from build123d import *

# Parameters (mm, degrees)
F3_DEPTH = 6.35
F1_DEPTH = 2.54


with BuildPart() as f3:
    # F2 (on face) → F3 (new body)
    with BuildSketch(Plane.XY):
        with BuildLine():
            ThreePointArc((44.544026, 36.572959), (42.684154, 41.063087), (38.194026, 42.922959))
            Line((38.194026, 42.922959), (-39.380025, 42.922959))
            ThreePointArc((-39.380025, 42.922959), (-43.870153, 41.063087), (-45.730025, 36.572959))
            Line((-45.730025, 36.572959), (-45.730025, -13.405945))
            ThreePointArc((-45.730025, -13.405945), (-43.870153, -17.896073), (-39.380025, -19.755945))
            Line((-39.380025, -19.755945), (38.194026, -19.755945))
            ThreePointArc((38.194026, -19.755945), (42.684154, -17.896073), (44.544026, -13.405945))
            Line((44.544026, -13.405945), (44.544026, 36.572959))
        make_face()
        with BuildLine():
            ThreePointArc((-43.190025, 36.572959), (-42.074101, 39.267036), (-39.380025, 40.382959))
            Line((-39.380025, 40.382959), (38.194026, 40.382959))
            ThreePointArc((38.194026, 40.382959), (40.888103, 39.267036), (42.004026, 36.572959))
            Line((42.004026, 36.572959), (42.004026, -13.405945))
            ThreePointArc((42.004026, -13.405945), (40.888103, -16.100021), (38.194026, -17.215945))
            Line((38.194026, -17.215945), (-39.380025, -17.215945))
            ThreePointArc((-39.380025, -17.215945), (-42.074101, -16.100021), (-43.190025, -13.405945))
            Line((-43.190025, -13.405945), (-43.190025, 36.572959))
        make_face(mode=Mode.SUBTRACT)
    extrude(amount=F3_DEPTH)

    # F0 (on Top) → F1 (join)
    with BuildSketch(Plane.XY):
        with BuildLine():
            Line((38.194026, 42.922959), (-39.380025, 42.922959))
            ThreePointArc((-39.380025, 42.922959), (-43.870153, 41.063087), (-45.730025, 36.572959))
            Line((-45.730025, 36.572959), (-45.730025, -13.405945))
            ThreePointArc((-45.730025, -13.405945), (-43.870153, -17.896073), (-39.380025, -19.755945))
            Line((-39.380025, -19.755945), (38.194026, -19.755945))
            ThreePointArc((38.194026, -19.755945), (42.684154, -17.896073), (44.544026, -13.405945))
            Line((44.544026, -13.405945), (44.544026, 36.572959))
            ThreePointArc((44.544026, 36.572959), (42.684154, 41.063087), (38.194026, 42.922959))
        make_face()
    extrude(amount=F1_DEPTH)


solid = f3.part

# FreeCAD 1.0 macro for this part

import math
import FreeCAD as App
import Part
import Sketcher
from FreeCAD import Vector
Q = App.Units.Quantity

doc = App.newDocument("Part")
body = doc.addObject("PartDesign::Body", "Body")

# Sketch on XY plane
sketch1 = body.newObject("Sketcher::SketchObject", "Sketch")
sketch1.AttachmentSupport = (doc.getObject("XY_Plane"), [""])
sketch1.MapMode = "FlatFace"
sketch1.addGeometry(Part.ArcOfCircle(Part.Circle(Vector(38.2, 36.6, 0), Vector(0, 0, 1), 6.4), math.radians(0), math.radians(90)), False)
sketch1.addGeometry(Part.LineSegment(Vector(38.2, 42.9, 0), Vector(-39.4, 42.9, 0)), False)
sketch1.addGeometry(Part.ArcOfCircle(Part.Circle(Vector(-39.4, 36.6, 0), Vector(0, 0, 1), 6.4), math.radians(90), math.radians(180)), False)
sketch1.addGeometry(Part.LineSegment(Vector(-45.7, 36.6, 0), Vector(-45.7, -13.4, 0)), False)
sketch1.addGeometry(Part.ArcOfCircle(Part.Circle(Vector(-39.4, -13.4, 0), Vector(0, 0, 1), 6.4), math.radians(-180), math.radians(-90)), False)
sketch1.addGeometry(Part.LineSegment(Vector(-39.4, -19.8, 0), Vector(38.2, -19.8, 0)), False)
sketch1.addGeometry(Part.ArcOfCircle(Part.Circle(Vector(38.2, -13.4, 0), Vector(0, 0, 1), 6.4), math.radians(-90), math.radians(0)), False)
sketch1.addGeometry(Part.LineSegment(Vector(44.5, -13.4, 0), Vector(44.5, 36.6, 0)), False)
sketch1.addGeometry(Part.LineSegment(Vector(-43.2, -13.4, 0), Vector(-43.2, 36.6, 0)), False)
sketch1.addGeometry(Part.ArcOfCircle(Part.Circle(Vector(-39.4, 36.6, 0), Vector(0, 0, 1), 3.8), math.radians(90), math.radians(180)), False)
sketch1.addGeometry(Part.LineSegment(Vector(-39.4, 40.4, 0), Vector(38.2, 40.4, 0)), False)
sketch1.addGeometry(Part.ArcOfCircle(Part.Circle(Vector(38.2, 36.6, 0), Vector(0, 0, 1), 3.8), math.radians(0), math.radians(90)), False)
sketch1.addGeometry(Part.LineSegment(Vector(42, 36.6, 0), Vector(42, -13.4, 0)), False)
sketch1.addGeometry(Part.ArcOfCircle(Part.Circle(Vector(38.2, -13.4, 0), Vector(0, 0, 1), 3.8), math.radians(-90), math.radians(0)), False)
sketch1.addGeometry(Part.LineSegment(Vector(38.2, -17.2, 0), Vector(-39.4, -17.2, 0)), False)
sketch1.addGeometry(Part.ArcOfCircle(Part.Circle(Vector(-39.4, -13.4, 0), Vector(0, 0, 1), 3.8), math.radians(-180), math.radians(-90)), False)
sketch1.addConstraint(Sketcher.Constraint("Tangent", 0, 2, 1, 1))
sketch1.addConstraint(Sketcher.Constraint("Tangent", 1, 2, 2, 1))
sketch1.addConstraint(Sketcher.Constraint("Tangent", 2, 2, 3, 1))
sketch1.addConstraint(Sketcher.Constraint("Tangent", 3, 2, 4, 1))
sketch1.addConstraint(Sketcher.Constraint("Tangent", 4, 2, 5, 1))
sketch1.addConstraint(Sketcher.Constraint("Tangent", 5, 2, 6, 1))
sketch1.addConstraint(Sketcher.Constraint("Tangent", 6, 2, 7, 1))
sketch1.addConstraint(Sketcher.Constraint("Tangent", 7, 2, 0, 1))
sketch1.addConstraint(Sketcher.Constraint("Tangent", 8, 2, 9, 2))
sketch1.addConstraint(Sketcher.Constraint("Tangent", 9, 1, 10, 1))
sketch1.addConstraint(Sketcher.Constraint("Tangent", 10, 2, 11, 2))
sketch1.addConstraint(Sketcher.Constraint("Tangent", 11, 1, 12, 1))
sketch1.addConstraint(Sketcher.Constraint("Tangent", 12, 2, 13, 2))
sketch1.addConstraint(Sketcher.Constraint("Tangent", 13, 1, 14, 1))
sketch1.addConstraint(Sketcher.Constraint("Tangent", 14, 2, 15, 2))
sketch1.addConstraint(Sketcher.Constraint("Tangent", 15, 1, 8, 1))
sketch1.addConstraint(Sketcher.Constraint("Horizontal", 1))
sketch1.addConstraint(Sketcher.Constraint("Vertical", 3))
sketch1.addConstraint(Sketcher.Constraint("Horizontal", 5))
sketch1.addConstraint(Sketcher.Constraint("Vertical", 7))
sketch1.addConstraint(Sketcher.Constraint("Vertical", 8))
sketch1.addConstraint(Sketcher.Constraint("Horizontal", 10))
sketch1.addConstraint(Sketcher.Constraint("Vertical", 12))
sketch1.addConstraint(Sketcher.Constraint("Horizontal", 14))
sketch1.addConstraint(Sketcher.Constraint("Coincident", 9, 3, 2, 3))
sketch1.addConstraint(Sketcher.Constraint("Coincident", 11, 3, 0, 3))
sketch1.addConstraint(Sketcher.Constraint("Coincident", 13, 3, 6, 3))
sketch1.addConstraint(Sketcher.Constraint("Equal", 0, 2))
sketch1.addConstraint(Sketcher.Constraint("Equal", 2, 4))
sketch1.addConstraint(Sketcher.Constraint("Equal", 4, 6))
sketch1.addConstraint(Sketcher.Constraint("Equal", 13, 15))
sketch1.addConstraint(Sketcher.Constraint("Radius", 0, Q("0.25 in")))
sketch1.addConstraint(Sketcher.Constraint("Radius", 9, Q("0.15 in")))
sketch1.addConstraint(Sketcher.Constraint("DistanceX", 1, 2, 1, 1, Q("77.574051 mm")))
sketch1.addConstraint(Sketcher.Constraint("DistanceY", 13, 3, 9, 3, Q("49.978902 mm")))
sketch1.addConstraint(Sketcher.Constraint("DistanceY", -1, 1, 0, 3, Q("36.572959 mm")))
sketch1.addConstraint(Sketcher.Constraint("DistanceX", -1, 1, 0, 3, Q("38.194026 mm")))
pad1 = body.newObject("PartDesign::Pad", "Pad")
pad1.Profile = sketch1
pad1.Length = Q("0.25 in")

# Sketch on XY plane
sketch2 = body.newObject("Sketcher::SketchObject", "Sketch001")
sketch2.AttachmentSupport = (doc.getObject("XY_Plane"), [""])
sketch2.MapMode = "FlatFace"
sketch2.addGeometry(Part.LineSegment(Vector(38, 43, 0), Vector(-39, 43, 0)), False)
sketch2.addGeometry(Part.ArcOfCircle(Part.Circle(Vector(-39, 37, 0), Vector(0, 0, 1), 6), math.radians(90), math.radians(180)), False)
sketch2.addGeometry(Part.LineSegment(Vector(-46, 37, 0), Vector(-46, -13, 0)), False)
sketch2.addGeometry(Part.ArcOfCircle(Part.Circle(Vector(-39, -13, 0), Vector(0, 0, 1), 6), math.radians(-180), math.radians(-90)), False)
sketch2.addGeometry(Part.LineSegment(Vector(-39, -20, 0), Vector(38, -20, 0)), False)
sketch2.addGeometry(Part.ArcOfCircle(Part.Circle(Vector(38, -13, 0), Vector(0, 0, 1), 6), math.radians(-90), math.radians(0)), False)
sketch2.addGeometry(Part.LineSegment(Vector(45, -13, 0), Vector(45, 37, 0)), False)
sketch2.addGeometry(Part.ArcOfCircle(Part.Circle(Vector(38, 37, 0), Vector(0, 0, 1), 6), math.radians(0), math.radians(90)), False)
sketch2.addConstraint(Sketcher.Constraint("Tangent", 0, 2, 1, 1))
sketch2.addConstraint(Sketcher.Constraint("Tangent", 1, 2, 2, 1))
sketch2.addConstraint(Sketcher.Constraint("Tangent", 2, 2, 3, 1))
sketch2.addConstraint(Sketcher.Constraint("Tangent", 3, 2, 4, 1))
sketch2.addConstraint(Sketcher.Constraint("Tangent", 4, 2, 5, 1))
sketch2.addConstraint(Sketcher.Constraint("Tangent", 5, 2, 6, 1))
sketch2.addConstraint(Sketcher.Constraint("Tangent", 6, 2, 7, 1))
sketch2.addConstraint(Sketcher.Constraint("Tangent", 7, 2, 0, 1))
sketch2.addConstraint(Sketcher.Constraint("Horizontal", 0))
sketch2.addConstraint(Sketcher.Constraint("Vertical", 2))
sketch2.addConstraint(Sketcher.Constraint("Horizontal", 4))
sketch2.addConstraint(Sketcher.Constraint("Vertical", 6))
sketch2.addConstraint(Sketcher.Constraint("Equal", 1, 3))
sketch2.addConstraint(Sketcher.Constraint("Equal", 3, 5))
sketch2.addConstraint(Sketcher.Constraint("Equal", 5, 7))
sketch2.addConstraint(Sketcher.Constraint("Radius", 1, Q("0.25 in")))
sketch2.addConstraint(Sketcher.Constraint("DistanceX", 0, 2, 0, 1, Q("77.574051 mm")))
sketch2.addConstraint(Sketcher.Constraint("DistanceY", 2, 2, 2, 1, Q("49.978904 mm")))
sketch2.addConstraint(Sketcher.Constraint("DistanceY", -1, 1, 1, 3, Q("36.572959 mm")))
sketch2.addConstraint(Sketcher.Constraint("DistanceX", 1, 3, -1, 1, Q("39.380025 mm")))
pad2 = body.newObject("PartDesign::Pad", "Pad001")
pad2.Profile = sketch2
pad2.Length = Q("0.1 in")

doc.recompute()
